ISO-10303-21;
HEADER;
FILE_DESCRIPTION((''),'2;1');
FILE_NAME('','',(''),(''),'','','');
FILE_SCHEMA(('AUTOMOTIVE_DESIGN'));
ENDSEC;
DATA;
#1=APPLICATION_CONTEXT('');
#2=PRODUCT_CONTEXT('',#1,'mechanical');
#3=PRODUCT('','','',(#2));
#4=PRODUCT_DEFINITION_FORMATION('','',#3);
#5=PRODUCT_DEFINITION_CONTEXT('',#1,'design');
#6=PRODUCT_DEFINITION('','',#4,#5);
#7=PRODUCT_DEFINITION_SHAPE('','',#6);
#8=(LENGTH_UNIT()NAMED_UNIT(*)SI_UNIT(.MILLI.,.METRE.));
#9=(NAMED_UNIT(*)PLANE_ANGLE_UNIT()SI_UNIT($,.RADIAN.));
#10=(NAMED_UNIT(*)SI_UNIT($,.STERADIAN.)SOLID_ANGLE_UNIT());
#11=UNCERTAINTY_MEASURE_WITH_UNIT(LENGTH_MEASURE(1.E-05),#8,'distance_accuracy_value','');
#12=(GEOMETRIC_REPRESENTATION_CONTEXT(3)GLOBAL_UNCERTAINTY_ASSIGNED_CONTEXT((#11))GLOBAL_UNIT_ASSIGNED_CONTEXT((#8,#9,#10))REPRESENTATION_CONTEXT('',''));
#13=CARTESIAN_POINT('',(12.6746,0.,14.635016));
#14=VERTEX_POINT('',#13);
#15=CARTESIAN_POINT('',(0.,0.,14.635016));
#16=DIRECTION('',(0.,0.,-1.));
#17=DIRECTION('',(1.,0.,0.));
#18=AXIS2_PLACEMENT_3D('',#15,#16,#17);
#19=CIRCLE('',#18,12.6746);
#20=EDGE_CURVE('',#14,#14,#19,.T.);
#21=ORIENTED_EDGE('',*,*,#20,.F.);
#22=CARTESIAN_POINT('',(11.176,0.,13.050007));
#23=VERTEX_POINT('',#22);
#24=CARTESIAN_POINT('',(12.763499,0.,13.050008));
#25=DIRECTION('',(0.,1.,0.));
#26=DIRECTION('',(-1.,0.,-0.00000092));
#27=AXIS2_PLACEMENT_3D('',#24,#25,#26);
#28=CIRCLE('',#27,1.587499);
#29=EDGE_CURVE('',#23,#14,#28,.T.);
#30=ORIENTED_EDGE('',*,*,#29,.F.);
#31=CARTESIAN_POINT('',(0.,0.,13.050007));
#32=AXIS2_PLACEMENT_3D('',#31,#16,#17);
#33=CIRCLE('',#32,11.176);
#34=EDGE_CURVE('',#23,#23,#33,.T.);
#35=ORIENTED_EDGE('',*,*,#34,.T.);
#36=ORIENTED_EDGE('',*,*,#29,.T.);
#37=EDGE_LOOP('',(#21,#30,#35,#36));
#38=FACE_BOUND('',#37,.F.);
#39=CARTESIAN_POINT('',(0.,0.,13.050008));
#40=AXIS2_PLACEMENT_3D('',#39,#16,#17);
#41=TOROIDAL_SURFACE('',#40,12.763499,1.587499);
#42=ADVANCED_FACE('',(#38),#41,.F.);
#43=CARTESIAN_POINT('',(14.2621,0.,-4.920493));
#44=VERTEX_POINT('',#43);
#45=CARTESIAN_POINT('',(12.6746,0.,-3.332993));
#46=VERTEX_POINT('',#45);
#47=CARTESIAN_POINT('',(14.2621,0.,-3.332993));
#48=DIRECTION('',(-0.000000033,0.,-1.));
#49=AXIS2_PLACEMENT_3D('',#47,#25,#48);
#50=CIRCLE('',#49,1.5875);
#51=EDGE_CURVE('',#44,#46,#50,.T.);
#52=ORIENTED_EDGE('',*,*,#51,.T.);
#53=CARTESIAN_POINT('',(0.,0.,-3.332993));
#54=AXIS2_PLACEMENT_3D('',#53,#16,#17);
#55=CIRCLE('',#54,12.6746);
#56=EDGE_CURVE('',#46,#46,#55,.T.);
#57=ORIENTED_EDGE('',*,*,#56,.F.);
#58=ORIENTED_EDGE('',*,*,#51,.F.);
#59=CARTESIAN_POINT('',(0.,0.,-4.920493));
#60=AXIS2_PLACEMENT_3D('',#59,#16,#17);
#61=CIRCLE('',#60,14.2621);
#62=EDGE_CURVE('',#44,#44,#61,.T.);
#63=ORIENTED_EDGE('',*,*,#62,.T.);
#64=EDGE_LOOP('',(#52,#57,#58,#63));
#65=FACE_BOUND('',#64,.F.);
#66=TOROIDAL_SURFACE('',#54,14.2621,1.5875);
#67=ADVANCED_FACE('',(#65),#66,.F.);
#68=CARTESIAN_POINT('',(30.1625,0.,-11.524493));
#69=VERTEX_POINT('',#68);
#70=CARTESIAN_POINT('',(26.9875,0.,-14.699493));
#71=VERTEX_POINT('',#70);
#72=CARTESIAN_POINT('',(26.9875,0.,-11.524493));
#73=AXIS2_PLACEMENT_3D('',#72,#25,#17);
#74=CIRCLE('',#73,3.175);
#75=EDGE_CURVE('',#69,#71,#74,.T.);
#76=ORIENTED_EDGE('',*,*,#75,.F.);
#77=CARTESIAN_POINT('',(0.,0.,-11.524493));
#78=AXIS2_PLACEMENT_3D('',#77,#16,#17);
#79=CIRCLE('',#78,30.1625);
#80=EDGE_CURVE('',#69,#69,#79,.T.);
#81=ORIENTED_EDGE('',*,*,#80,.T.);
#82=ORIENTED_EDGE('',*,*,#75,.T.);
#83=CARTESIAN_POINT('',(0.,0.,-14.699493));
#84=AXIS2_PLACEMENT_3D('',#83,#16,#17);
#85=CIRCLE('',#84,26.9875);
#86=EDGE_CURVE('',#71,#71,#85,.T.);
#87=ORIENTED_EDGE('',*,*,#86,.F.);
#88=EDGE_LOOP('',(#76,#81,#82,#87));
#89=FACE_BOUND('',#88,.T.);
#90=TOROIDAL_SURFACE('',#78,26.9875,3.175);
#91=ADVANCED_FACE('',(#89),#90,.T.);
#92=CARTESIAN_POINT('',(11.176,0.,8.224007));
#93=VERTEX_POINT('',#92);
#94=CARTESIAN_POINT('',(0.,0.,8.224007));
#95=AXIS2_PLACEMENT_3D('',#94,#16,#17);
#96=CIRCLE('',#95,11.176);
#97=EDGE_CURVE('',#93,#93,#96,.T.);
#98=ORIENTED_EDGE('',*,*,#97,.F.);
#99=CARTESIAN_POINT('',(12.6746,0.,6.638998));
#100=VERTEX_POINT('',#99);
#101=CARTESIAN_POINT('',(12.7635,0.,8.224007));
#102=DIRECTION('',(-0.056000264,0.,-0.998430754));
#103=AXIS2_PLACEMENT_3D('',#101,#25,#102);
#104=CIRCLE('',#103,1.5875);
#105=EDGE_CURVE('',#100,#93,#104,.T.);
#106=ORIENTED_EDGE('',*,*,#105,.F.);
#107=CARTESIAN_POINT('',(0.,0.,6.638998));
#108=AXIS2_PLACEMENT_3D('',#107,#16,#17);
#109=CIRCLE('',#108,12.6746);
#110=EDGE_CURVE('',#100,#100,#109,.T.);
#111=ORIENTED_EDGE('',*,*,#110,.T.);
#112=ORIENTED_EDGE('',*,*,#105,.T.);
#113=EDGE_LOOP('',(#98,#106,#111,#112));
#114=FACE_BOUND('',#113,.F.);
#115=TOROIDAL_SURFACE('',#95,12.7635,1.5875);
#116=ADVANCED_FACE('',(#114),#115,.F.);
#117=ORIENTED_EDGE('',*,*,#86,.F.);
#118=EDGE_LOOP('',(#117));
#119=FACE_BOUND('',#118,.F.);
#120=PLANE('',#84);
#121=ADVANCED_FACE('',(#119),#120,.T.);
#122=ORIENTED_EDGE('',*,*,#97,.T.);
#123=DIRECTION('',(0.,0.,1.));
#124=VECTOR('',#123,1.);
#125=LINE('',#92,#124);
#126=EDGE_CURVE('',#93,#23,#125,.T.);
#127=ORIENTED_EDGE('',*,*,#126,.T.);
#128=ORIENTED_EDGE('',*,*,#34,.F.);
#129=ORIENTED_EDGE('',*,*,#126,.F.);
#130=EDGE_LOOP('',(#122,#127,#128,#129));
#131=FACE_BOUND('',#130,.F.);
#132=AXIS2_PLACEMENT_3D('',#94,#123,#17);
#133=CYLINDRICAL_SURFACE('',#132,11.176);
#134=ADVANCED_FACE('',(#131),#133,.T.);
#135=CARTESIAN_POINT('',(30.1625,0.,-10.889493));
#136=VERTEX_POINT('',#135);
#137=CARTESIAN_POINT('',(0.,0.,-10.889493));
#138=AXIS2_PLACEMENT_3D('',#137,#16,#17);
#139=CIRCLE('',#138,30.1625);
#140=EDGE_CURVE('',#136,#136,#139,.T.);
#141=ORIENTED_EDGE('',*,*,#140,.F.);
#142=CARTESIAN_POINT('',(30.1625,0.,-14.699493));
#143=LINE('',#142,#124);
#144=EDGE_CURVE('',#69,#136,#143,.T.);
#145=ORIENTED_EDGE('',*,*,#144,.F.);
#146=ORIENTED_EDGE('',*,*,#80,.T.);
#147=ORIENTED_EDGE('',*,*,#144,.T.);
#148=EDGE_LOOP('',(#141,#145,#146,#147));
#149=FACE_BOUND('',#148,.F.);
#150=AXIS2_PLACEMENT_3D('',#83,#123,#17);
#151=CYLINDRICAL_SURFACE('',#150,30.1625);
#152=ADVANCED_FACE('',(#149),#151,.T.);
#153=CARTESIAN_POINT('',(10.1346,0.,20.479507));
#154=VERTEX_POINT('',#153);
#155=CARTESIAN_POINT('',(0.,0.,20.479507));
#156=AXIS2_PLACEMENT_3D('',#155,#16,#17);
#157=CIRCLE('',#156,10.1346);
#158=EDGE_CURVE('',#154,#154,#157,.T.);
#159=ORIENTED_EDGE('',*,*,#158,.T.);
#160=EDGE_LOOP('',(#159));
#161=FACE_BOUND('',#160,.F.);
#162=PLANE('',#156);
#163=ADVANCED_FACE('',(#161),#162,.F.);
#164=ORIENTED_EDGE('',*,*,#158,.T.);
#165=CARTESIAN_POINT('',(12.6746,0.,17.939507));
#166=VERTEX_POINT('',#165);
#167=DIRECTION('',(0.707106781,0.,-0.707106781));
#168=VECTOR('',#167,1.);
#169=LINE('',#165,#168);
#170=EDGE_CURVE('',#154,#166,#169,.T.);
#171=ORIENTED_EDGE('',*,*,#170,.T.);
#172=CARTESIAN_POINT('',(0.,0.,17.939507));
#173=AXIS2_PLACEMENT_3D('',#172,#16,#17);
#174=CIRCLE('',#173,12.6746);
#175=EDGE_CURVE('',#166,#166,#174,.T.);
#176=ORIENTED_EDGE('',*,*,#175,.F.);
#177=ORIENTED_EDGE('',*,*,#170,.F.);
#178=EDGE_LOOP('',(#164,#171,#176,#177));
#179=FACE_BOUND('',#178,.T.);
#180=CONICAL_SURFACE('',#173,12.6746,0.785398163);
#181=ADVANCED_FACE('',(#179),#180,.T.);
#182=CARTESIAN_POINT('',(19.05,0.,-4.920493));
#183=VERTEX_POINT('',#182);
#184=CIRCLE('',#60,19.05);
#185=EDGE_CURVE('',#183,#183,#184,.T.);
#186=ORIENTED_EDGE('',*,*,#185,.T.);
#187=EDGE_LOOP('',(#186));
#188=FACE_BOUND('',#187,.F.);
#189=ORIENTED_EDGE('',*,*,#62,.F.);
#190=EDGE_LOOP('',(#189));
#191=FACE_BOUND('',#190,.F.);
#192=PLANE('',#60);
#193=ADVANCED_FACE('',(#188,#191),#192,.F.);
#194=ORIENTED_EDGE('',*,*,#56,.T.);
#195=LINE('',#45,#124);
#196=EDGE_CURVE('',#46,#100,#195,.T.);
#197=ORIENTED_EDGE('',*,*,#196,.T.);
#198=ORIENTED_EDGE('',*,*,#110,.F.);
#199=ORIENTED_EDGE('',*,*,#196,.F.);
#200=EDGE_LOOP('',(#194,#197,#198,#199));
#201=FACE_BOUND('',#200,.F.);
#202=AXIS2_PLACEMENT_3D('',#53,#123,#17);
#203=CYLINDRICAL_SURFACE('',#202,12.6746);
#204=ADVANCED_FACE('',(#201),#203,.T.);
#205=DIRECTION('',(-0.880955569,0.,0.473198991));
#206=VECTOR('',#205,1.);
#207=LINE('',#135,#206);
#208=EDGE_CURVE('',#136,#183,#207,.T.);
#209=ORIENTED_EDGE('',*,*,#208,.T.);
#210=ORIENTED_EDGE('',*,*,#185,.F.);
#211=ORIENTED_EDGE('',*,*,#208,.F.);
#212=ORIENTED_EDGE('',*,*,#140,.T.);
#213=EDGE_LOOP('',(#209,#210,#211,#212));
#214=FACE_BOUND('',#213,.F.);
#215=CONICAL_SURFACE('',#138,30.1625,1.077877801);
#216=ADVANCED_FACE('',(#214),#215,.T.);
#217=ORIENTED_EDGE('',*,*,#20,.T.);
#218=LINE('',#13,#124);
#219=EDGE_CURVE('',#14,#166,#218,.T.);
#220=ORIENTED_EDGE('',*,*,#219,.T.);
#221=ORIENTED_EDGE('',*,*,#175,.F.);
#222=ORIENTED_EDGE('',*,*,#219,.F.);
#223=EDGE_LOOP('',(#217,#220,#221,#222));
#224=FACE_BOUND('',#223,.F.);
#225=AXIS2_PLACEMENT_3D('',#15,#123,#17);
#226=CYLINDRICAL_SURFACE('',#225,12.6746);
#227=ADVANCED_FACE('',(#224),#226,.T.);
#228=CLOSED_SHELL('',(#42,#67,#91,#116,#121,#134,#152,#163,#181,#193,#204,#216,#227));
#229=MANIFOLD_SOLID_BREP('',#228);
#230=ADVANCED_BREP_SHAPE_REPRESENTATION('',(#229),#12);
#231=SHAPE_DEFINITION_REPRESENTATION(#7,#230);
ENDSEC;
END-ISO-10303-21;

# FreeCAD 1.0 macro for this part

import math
import FreeCAD as App
import Part
import Sketcher

V = App.Vector
Q = App.Units.Quantity


def edges_at(feature, points):
    """Names of the edges that pass closest to the given points."""
    edges = feature.Shape.Edges
    near = lambda p: min(range(len(edges)), key=lambda i: edges[i].distToShape(Part.Vertex(*p))[0])
    return sorted({f"Edge{near(p) + 1}" for p in points})

doc = App.newDocument("Part")
body = doc.addObject("PartDesign::Body", "Body")

# Sketch on XZ plane
sketch1 = body.newObject("Sketcher::SketchObject", "Sketch")
sketch1.AttachmentSupport = (doc.getObject("XZ_Plane"), [""])
sketch1.MapMode = "FlatFace"
sketch1.addGeometry([
    Part.LineSegment(V(12.7, 20.5, 0), V(0, 20.5, 0)),  # 0
    Part.LineSegment(V(0, 20.5, 0), V(0, -14.7, 0)),  # 1
    Part.LineSegment(V(0, -14.7, 0), V(30.2, -14.7, 0)),  # 2
    Part.LineSegment(V(30.2, -14.7, 0), V(30.2, -10.9, 0)),  # 3
    Part.LineSegment(V(30.2, -10.9, 0), V(19.1, -4.9, 0)),  # 4
    Part.LineSegment(V(19.1, -4.9, 0), V(14.3, -4.9, 0)),  # 5
    Part.ArcOfCircle(Part.Circle(V(14.3, -3.3, 0), V(0, 0, 1), 1.6), math.radians(-180), math.radians(-90)),  # 6
    Part.LineSegment(V(12.7, -3.3, 0), V(12.7, 6.6, 0)),  # 7
    Part.ArcOfCircle(Part.Circle(V(12.8, 8.2, 0), V(0, 0, 1), 1.6), math.radians(-180), math.radians(-93)),  # 8
    Part.LineSegment(V(11.2, 8.2, 0), V(11.2, 13.1, 0)),  # 9
    Part.ArcOfCircle(Part.Circle(V(12.8, 13.1, 0), V(0, 0, 1), 1.6), math.radians(93), math.radians(180)),  # 10
    Part.LineSegment(V(12.7, 14.6, 0), V(12.7, 20.5, 0)),  # 11
], False)
sketch1.addConstraint([
    Sketcher.Constraint("Coincident", 0, 2, 1, 1),
    Sketcher.Constraint("Coincident", 1, 2, 2, 1),
    Sketcher.Constraint("Coincident", 2, 2, 3, 1),
    Sketcher.Constraint("Coincident", 3, 2, 4, 1),
    Sketcher.Constraint("Coincident", 4, 2, 5, 1),
    Sketcher.Constraint("Tangent", 5, 2, 6, 2),
    Sketcher.Constraint("Tangent", 6, 1, 7, 1),
    Sketcher.Constraint("Coincident", 7, 2, 8, 2),
    Sketcher.Constraint("Tangent", 8, 1, 9, 1),
    Sketcher.Constraint("Tangent", 9, 2, 10, 2),
    Sketcher.Constraint("Coincident", 10, 1, 11, 1),
    Sketcher.Constraint("Coincident", 11, 2, 0, 1),
    Sketcher.Constraint("Horizontal", 0),
    Sketcher.Constraint("Vertical", 1),
    Sketcher.Constraint("Horizontal", 2),
    Sketcher.Constraint("Vertical", 3),
    Sketcher.Constraint("Horizontal", 5),
    Sketcher.Constraint("Vertical", 7),
    Sketcher.Constraint("Vertical", 9),
    Sketcher.Constraint("Vertical", 11),
    Sketcher.Constraint("Equal", 6, 8),
    Sketcher.Constraint("Equal", 8, 10),
    Sketcher.Constraint("PointOnObject", 0, 2, -2),
    Sketcher.Constraint("Vertical", 7, 2, 10, 1),
    Sketcher.Constraint("Radius", 6, Q("0.0625 in")),
    Sketcher.Constraint("DistanceY", 3, 1, 3, 2, Q("0.15 in")),
    Sketcher.Constraint("DistanceY", 9, 1, 9, 2, Q("0.19 in")),
    Sketcher.Constraint("DistanceX", 0, 2, 0, 1, Q("0.499 in")),
    Sketcher.Constraint("DistanceX", 2, 1, 2, 2, Q("1.1875 in")),
    Sketcher.Constraint("DistanceY", 1, 2, 1, 1, Q("1.385 in")),
    Sketcher.Constraint("DistanceX", -1, 1, 4, 2, Q("0.75 in")),
    Sketcher.Constraint("DistanceX", -1, 1, 8, 1, Q("0.44 in")),
    Sketcher.Constraint("DistanceY", 6, 3, 8, 3, Q("0.455 in")),
    Sketcher.Constraint("DistanceY", 6, 3, 0, 2, Q("0.9375 in")),
    Sketcher.Constraint("DistanceY", -1, 1, 10, 3, Q("13.050008 mm")),
])
revolution = body.newObject("PartDesign::Revolution", "Revolution")
revolution.Profile = sketch1
revolution.ReferenceAxis = (sketch1, ["V_Axis"])
revolution.Angle = 360
doc.recompute()

chamfer = body.newObject("PartDesign::Chamfer", "Chamfer")
chamfer.Base = (revolution, edges_at(revolution, [(-12.675, 0, 20.48)]))
chamfer.Size = Q("0.1 in")
doc.recompute()

fillet = body.newObject("PartDesign::Fillet", "Fillet")
fillet.Base = (chamfer, edges_at(chamfer, [(-30.163, 0, -14.699)]))
fillet.Radius = Q("0.125 in")

doc.recompute()
